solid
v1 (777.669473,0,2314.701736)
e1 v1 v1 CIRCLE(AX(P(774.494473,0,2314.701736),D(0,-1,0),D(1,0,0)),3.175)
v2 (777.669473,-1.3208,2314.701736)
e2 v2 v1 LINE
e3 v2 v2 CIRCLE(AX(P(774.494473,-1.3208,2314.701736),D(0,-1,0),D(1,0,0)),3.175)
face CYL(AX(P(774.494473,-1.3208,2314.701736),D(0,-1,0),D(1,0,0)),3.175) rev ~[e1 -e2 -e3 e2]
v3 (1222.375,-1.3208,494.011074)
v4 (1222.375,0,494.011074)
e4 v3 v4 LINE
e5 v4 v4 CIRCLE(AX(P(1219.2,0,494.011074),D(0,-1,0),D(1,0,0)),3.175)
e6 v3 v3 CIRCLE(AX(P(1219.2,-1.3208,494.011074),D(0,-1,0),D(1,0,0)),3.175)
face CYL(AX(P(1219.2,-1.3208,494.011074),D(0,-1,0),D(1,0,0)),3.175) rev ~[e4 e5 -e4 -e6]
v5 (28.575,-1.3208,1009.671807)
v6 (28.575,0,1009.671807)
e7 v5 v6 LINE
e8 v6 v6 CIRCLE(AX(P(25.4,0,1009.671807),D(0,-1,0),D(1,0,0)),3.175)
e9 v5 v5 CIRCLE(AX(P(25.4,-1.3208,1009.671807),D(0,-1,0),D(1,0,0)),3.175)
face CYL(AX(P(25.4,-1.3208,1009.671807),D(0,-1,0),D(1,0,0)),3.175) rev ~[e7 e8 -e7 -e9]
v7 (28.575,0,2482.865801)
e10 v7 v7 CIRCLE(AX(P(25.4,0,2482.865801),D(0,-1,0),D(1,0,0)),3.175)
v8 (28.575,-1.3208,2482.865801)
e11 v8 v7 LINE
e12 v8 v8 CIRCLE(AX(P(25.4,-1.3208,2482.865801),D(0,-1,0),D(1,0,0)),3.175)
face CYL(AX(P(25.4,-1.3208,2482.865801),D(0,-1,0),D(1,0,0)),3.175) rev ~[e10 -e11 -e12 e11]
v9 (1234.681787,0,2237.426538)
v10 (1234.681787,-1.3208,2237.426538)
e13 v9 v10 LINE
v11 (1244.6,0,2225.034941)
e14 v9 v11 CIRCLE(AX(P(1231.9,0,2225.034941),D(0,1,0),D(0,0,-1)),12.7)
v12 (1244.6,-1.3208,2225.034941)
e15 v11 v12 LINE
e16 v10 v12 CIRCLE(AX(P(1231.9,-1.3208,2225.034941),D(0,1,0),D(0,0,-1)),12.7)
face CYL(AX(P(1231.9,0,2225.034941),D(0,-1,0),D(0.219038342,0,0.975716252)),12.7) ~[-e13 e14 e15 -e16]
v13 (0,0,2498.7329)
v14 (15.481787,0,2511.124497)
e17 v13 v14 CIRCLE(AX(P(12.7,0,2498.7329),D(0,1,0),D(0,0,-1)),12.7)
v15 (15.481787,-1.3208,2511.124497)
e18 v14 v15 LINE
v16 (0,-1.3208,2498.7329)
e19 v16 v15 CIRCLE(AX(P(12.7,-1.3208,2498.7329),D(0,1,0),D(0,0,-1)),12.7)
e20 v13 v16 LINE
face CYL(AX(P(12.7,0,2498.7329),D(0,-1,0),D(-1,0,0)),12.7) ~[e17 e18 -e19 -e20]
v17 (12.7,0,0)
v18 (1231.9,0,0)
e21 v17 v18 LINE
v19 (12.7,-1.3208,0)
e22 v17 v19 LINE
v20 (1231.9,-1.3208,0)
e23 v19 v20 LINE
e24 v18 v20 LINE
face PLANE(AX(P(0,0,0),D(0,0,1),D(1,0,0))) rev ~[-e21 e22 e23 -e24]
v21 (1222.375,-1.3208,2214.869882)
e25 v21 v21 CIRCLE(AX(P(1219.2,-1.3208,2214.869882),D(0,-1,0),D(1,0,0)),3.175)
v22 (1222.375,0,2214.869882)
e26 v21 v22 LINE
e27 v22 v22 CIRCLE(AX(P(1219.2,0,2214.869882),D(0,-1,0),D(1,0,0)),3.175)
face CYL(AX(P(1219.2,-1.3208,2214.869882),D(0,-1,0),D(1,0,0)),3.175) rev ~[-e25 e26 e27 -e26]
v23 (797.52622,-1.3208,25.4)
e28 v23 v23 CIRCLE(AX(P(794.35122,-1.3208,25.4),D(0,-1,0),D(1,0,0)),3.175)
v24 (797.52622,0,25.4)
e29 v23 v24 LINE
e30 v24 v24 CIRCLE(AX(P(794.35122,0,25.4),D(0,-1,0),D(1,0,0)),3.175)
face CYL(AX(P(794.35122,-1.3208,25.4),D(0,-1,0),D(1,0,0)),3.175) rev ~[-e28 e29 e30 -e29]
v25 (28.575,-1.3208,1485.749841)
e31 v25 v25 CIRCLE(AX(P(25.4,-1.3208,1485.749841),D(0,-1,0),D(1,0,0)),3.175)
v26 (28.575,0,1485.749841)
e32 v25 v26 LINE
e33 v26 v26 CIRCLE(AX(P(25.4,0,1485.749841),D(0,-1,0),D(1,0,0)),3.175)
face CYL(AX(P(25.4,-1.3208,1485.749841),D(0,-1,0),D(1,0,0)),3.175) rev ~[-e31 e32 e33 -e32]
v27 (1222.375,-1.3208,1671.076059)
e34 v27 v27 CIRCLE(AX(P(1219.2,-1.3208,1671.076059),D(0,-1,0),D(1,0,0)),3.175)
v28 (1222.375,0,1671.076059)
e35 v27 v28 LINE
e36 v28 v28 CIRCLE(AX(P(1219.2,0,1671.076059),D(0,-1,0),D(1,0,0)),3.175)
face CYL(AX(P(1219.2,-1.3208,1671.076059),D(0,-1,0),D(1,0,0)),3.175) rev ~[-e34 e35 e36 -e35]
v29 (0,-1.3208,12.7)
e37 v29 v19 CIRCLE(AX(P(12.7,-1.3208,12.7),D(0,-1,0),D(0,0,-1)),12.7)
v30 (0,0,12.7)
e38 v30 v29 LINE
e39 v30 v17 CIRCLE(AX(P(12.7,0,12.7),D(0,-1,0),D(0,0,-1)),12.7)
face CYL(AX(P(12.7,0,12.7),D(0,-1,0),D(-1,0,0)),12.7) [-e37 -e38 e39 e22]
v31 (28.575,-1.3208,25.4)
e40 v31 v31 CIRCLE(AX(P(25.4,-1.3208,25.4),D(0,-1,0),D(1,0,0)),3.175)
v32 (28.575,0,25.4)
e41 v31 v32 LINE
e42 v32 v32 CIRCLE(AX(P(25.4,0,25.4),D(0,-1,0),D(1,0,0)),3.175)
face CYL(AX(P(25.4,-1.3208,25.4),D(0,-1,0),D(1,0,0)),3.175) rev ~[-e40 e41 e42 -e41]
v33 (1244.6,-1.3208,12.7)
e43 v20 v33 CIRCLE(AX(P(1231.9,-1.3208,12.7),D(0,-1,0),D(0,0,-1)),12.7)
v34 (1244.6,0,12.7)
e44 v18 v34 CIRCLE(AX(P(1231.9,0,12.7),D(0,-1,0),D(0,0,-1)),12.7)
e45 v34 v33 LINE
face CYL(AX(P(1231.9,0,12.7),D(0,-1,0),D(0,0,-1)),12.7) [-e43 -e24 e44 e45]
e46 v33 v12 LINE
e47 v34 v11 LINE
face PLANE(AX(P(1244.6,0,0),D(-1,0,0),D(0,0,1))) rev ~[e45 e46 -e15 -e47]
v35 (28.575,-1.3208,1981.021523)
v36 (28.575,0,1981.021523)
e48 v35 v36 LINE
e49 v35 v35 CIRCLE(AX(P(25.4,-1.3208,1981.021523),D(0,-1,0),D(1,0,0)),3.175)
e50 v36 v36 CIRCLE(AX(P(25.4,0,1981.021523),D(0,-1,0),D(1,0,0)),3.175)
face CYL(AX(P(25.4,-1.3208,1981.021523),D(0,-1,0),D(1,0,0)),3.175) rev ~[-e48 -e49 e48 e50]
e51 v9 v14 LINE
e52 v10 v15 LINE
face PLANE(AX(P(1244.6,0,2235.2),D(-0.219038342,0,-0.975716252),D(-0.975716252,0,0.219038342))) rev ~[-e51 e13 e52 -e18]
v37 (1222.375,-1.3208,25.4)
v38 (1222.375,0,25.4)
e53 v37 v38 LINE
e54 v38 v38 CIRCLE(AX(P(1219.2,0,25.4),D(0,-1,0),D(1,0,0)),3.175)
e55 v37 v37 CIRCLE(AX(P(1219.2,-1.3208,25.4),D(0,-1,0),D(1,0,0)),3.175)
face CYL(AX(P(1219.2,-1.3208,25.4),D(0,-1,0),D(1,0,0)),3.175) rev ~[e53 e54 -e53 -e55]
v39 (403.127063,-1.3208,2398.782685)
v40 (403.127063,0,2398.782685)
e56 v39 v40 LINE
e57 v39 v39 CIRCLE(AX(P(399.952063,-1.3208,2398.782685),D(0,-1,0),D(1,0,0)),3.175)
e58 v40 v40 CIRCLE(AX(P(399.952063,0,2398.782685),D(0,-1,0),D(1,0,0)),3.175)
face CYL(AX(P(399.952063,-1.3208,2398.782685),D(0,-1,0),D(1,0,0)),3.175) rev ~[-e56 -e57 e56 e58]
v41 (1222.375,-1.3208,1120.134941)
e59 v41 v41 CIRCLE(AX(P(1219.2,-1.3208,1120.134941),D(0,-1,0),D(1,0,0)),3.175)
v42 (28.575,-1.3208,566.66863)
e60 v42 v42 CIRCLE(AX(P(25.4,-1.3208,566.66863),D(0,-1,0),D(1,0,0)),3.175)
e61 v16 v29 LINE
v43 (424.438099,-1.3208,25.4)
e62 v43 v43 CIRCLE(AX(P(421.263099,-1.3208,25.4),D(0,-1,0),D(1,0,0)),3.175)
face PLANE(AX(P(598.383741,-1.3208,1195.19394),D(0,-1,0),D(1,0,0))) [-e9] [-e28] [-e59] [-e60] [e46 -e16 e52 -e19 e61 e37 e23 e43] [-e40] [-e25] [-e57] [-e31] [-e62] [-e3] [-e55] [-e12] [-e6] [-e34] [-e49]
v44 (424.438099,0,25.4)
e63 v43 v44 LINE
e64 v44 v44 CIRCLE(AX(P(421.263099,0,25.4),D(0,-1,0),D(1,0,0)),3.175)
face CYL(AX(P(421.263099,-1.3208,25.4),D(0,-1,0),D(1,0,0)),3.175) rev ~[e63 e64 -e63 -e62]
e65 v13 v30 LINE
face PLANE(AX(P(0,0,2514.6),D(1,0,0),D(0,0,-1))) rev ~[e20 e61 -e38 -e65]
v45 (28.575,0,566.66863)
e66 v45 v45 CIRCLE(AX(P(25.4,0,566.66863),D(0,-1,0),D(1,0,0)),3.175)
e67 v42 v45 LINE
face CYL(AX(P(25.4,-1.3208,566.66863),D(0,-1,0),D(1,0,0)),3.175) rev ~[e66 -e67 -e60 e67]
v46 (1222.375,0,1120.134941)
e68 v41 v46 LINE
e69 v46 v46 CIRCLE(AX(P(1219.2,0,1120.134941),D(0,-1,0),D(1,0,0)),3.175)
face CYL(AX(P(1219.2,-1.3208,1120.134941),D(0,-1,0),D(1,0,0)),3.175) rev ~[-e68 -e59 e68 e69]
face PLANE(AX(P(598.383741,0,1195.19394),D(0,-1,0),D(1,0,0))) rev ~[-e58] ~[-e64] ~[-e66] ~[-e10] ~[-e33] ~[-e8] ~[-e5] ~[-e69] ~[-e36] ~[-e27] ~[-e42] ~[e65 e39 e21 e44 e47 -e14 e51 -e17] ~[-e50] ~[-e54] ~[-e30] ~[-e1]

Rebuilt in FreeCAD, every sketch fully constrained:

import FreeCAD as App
import Part
import Sketcher

V = App.Vector
Q = App.Units.Quantity


def edges_at(feature, points):
    """Names of the edges that pass closest to the given points."""
    edges = feature.Shape.Edges
    near = lambda p: min(range(len(edges)), key=lambda i: edges[i].distToShape(Part.Vertex(*p))[0])
    return sorted({f"Edge{near(p) + 1}" for p in points})


def add_polygon(sketch, points):
    """Adds a closed chain of lines whose ends are joined by coincident constraints."""
    first, n = sketch.GeometryCount, len(points)
    for a, b in zip(points, points[1:] + points[:1]):
        sketch.addGeometry(Part.LineSegment(App.Vector(*a, 0), App.Vector(*b, 0)), False)
    for i in range(n):
        sketch.addConstraint(Sketcher.Constraint("Coincident", first + i, 2, first + (i + 1) % n, 1))

doc = App.newDocument("Part")
body = doc.addObject("PartDesign::Body", "Body")

sketch1 = body.newObject("Sketcher::SketchObject", "Sketch")
sketch1.AttachmentSupport = (doc.getObject("XZ_Plane"), [""])
sketch1.MapMode = "FlatFace"
add_polygon(sketch1, [(0, 2514.6), (0, 0), (1244.6, 0), (1244.6, 2235.2)])
sketch1.addConstraint([
    Sketcher.Constraint("Vertical", 0),
    Sketcher.Constraint("Horizontal", 1),
    Sketcher.Constraint("Vertical", 2),
    Sketcher.Constraint("Coincident", 0, 2, -1, 1),
    Sketcher.Constraint("DistanceX", 1, 1, 1, 2, Q("49 in")),
    Sketcher.Constraint("DistanceY", 0, 2, 0, 1, Q("99 in")),
    Sketcher.Constraint("DistanceY", 2, 1, 2, 2, Q("88 in")),
])
pad1 = body.newObject("PartDesign::Pad", "Pad")
pad1.Profile = sketch1
pad1.Length = Q("0.052 in")

sketch2 = body.newObject("Sketcher::SketchObject", "Sketch001")
sketch2.AttachmentSupport = (doc.getObject("XZ_Plane"), [""])
sketch2.MapMode = "FlatFace"
sketch2.AttachmentOffset = App.Placement(V(0, 0, 0.052 * 25.4), App.Rotation())
sketch2.addGeometry([
    Part.Circle(V(25.4, 2482.865801, 0), V(0, 0, 1), 3.175),
    Part.Circle(V(1219.2, 2214.869882, 0), V(0, 0, 1), 3.175),
    Part.Circle(V(399.952063, 2398.782685, 0), V(0, 0, 1), 3.175),
    Part.Circle(V(774.494473, 2314.701736, 0), V(0, 0, 1), 3.175),
    Part.Circle(V(1219.2, 25.4, 0), V(0, 0, 1), 3.175),
    Part.Circle(V(25.4, 25.4, 0), V(0, 0, 1), 3.175),
    Part.Circle(V(421.263099, 25.4, 0), V(0, 0, 1), 3.175),
    Part.Circle(V(794.35122, 25.4, 0), V(0, 0, 1), 3.175),
    Part.Circle(V(1219.2, 1120.134941, 0), V(0, 0, 1), 3.175),
    Part.Circle(V(1219.2, 1671.076059, 0), V(0, 0, 1), 3.175),
    Part.Circle(V(1219.2, 494.011074, 0), V(0, 0, 1), 3.175),
    Part.Circle(V(25.4, 1485.749841, 0), V(0, 0, 1), 3.175),
    Part.Circle(V(25.4, 1009.671807, 0), V(0, 0, 1), 3.175),
    Part.Circle(V(25.4, 566.66863, 0), V(0, 0, 1), 3.175),
    Part.Circle(V(25.4, 1981.021523, 0), V(0, 0, 1), 3.175),
], False)
sketch2.addConstraint([
    Sketcher.Constraint("Equal", 0, 1),
    Sketcher.Constraint("Equal", 1, 2),
    Sketcher.Constraint("Equal", 2, 3),
    Sketcher.Constraint("Equal", 3, 4),
    Sketcher.Constraint("Equal", 4, 5),
    Sketcher.Constraint("Equal", 5, 6),
    Sketcher.Constraint("Equal", 6, 7),
    Sketcher.Constraint("Equal", 7, 8),
    Sketcher.Constraint("Equal", 8, 9),
    Sketcher.Constraint("Equal", 9, 10),
    Sketcher.Constraint("Equal", 10, 11),
    Sketcher.Constraint("Equal", 11, 12),
    Sketcher.Constraint("Equal", 12, 13),
    Sketcher.Constraint("Equal", 13, 14),
    Sketcher.Constraint("Horizontal", 4, 3, 5, 3),
    Sketcher.Constraint("Horizontal", 5, 3, 6, 3),
    Sketcher.Constraint("Horizontal", 6, 3, 7, 3),
    Sketcher.Constraint("Vertical", 1, 3, 4, 3),
    Sketcher.Constraint("Vertical", 0, 3, 5, 3),
    Sketcher.Constraint("Vertical", 4, 3, 8, 3),
    Sketcher.Constraint("Vertical", 8, 3, 9, 3),
    Sketcher.Constraint("Vertical", 9, 3, 10, 3),
    Sketcher.Constraint("Vertical", 5, 3, 11, 3),
    Sketcher.Constraint("Vertical", 11, 3, 12, 3),
    Sketcher.Constraint("Vertical", 12, 3, 13, 3),
    Sketcher.Constraint("Vertical", 13, 3, 14, 3),
    Sketcher.Constraint("Diameter", 0, Q("0.25 in")),
    Sketcher.Constraint("DistanceX", -1, 1, 0, 3, Q("1 in")),
    Sketcher.Constraint("DistanceX", -1, 1, 1, 3, Q("48 in")),
    Sketcher.Constraint("DistanceY", -1, 1, 4, 3, Q("1 in")),
    Sketcher.Constraint("DistanceY", -1, 1, 0, 3, Q("2482.865801 mm")),
    Sketcher.Constraint("DistanceX", -1, 1, 6, 3, Q("421.263099 mm")),
    Sketcher.Constraint("DistanceY", 8, 3, 11, 3, Q("365.6149 mm")),
    Sketcher.Constraint("DistanceY", -1, 1, 1, 3, Q("2214.869882 mm")),
    Sketcher.Constraint("DistanceX", -1, 1, 7, 3, Q("794.35122 mm")),
    Sketcher.Constraint("DistanceY", -1, 1, 8, 3, Q("1120.134941 mm")),
    Sketcher.Constraint("DistanceY", -1, 1, 9, 3, Q("1671.076059 mm")),
    Sketcher.Constraint("DistanceY", -1, 1, 13, 3, Q("566.66863 mm")),
    Sketcher.Constraint("DistanceX", 2, 3, 3, 3, Q("374.54241 mm")),
    Sketcher.Constraint("DistanceY", 3, 3, 2, 3, Q("84.080949 mm")),
    Sketcher.Constraint("DistanceY", 11, 3, 14, 3, Q("495.271682 mm")),
    Sketcher.Constraint("DistanceX", -1, 1, 2, 3, Q("399.952063 mm")),
    Sketcher.Constraint("DistanceY", -1, 1, 2, 3, Q("2398.782685 mm")),
    Sketcher.Constraint("DistanceY", -1, 1, 10, 3, Q("494.011074 mm")),
    Sketcher.Constraint("DistanceY", -1, 1, 12, 3, Q("1009.671807 mm")),
])
pocket1 = body.newObject("PartDesign::Pocket", "Pocket")
pocket1.Profile = sketch2
pocket1.Length = Q("1 in")
doc.recompute()

fillet = body.newObject("PartDesign::Fillet", "Fillet")
fillet.Base = (pocket1, edges_at(pocket1, [
    (1244.6, -0.66, 2235.2),
    (0, -0.66, 2514.6),
    (1244.6, -0.66, 0),
    (0, -0.66, 0),
]))
fillet.Radius = Q("0.5 in")

doc.recompute()
